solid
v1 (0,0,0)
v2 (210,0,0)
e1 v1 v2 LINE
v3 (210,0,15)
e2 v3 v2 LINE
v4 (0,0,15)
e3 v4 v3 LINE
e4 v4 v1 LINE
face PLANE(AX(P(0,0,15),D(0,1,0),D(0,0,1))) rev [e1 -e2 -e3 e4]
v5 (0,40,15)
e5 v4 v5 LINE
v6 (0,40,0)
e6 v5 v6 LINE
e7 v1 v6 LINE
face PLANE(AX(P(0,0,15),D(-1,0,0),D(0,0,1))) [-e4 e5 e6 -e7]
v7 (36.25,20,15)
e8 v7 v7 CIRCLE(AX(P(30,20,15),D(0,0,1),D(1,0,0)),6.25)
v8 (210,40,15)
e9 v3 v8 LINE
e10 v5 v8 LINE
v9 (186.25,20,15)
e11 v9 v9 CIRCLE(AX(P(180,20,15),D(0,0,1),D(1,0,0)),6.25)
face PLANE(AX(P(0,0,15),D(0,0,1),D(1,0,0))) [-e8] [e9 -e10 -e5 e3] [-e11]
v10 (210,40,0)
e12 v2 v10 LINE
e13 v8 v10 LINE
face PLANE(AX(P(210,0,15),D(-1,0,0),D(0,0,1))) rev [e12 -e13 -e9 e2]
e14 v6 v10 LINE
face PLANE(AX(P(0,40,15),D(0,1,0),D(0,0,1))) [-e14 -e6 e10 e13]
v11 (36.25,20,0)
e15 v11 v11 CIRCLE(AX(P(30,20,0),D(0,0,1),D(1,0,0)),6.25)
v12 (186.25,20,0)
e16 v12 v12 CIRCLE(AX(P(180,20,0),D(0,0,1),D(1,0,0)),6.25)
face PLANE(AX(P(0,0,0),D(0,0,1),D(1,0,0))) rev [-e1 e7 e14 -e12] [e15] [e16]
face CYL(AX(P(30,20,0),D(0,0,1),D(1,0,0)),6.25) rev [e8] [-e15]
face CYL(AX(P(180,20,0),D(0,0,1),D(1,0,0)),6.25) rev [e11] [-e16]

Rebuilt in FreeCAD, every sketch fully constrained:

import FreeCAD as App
import Part
import Sketcher

V = App.Vector

doc = App.newDocument("Part")
params = doc.addObject("Spreadsheet::Sheet", "Params")
for row, (alias, value) in enumerate([
    ("sketch1_width", "210 mm"),
    ("sketch1_height", "40 mm"),
    ("pad1_length", "15 mm"),
    ("sketch2_diameter", "12.5 mm"),
    ("pocket1_length", "15 mm"),
], start=1):
    params.set(f"A{row}", alias)
    params.set(f"B{row}", "=" + value)
    params.setAlias(f"B{row}", alias)

body = doc.addObject("PartDesign::Body", "Body")

sketch1 = body.newObject("Sketcher::SketchObject", "Sketch")
sketch1.AttachmentSupport = (doc.getObject("XY_Plane"), [""])
sketch1.MapMode = "FlatFace"
sketch1.addGeometry([
    Part.LineSegment(V(0, 40, 0), V(0, 0, 0)),
    Part.LineSegment(V(0, 0, 0), V(210, 0, 0)),
    Part.LineSegment(V(210, 0, 0), V(210, 40, 0)),
    Part.LineSegment(V(210, 40, 0), V(0, 40, 0)),
], False)
sketch1.addConstraint([
    Sketcher.Constraint("Coincident", 0, 2, 1, 1),
    Sketcher.Constraint("Coincident", 1, 2, 2, 1),
    Sketcher.Constraint("Coincident", 2, 2, 3, 1),
    Sketcher.Constraint("Coincident", 3, 2, 0, 1),
    Sketcher.Constraint("Vertical", 0),
    Sketcher.Constraint("Horizontal", 1),
    Sketcher.Constraint("Vertical", 2),
    Sketcher.Constraint("Horizontal", 3),
    Sketcher.Constraint("Coincident", 0, 2, -1, 1),
    Sketcher.Constraint("DistanceX", 1, 1, 1, 2, 210.0),
    Sketcher.Constraint("DistanceY", 0, 2, 0, 1, 40.0),
])
sketch1.setExpression("Constraints[9]", "Params.sketch1_width")
sketch1.setExpression("Constraints[10]", "Params.sketch1_height")
pad1 = body.newObject("PartDesign::Pad", "Pad")
pad1.Profile = sketch1
pad1.setExpression("Length", "Params.pad1_length")

sketch2 = body.newObject("Sketcher::SketchObject", "Sketch001")
sketch2.AttachmentSupport = (doc.getObject("XY_Plane"), [""])
sketch2.MapMode = "FlatFace"
sketch2.AttachmentOffset = App.Placement(V(0, 0, 15), App.Rotation())
sketch2.addGeometry([
    Part.Circle(V(30, 20, 0), V(0, 0, 1), 6),
    Part.Circle(V(180, 20, 0), V(0, 0, 1), 6),
], False)
sketch2.addConstraint([
    Sketcher.Constraint("Equal", 0, 1),
    Sketcher.Constraint("Horizontal", 0, 3, 1, 3),
    Sketcher.Constraint("Diameter", 0, 12.5),
    Sketcher.Constraint("DistanceX", -1, 1, 0, 3, 30.0),
    Sketcher.Constraint("DistanceY", -1, 1, 0, 3, 20.0),
    Sketcher.Constraint("DistanceX", -1, 1, 1, 3, 180.0),
])
sketch2.setExpression("Constraints[2]", "Params.sketch2_diameter")
pocket1 = body.newObject("PartDesign::Pocket", "Pocket")
pocket1.Profile = sketch2
pocket1.setExpression("Length", "Params.pocket1_length")

doc.recompute()
